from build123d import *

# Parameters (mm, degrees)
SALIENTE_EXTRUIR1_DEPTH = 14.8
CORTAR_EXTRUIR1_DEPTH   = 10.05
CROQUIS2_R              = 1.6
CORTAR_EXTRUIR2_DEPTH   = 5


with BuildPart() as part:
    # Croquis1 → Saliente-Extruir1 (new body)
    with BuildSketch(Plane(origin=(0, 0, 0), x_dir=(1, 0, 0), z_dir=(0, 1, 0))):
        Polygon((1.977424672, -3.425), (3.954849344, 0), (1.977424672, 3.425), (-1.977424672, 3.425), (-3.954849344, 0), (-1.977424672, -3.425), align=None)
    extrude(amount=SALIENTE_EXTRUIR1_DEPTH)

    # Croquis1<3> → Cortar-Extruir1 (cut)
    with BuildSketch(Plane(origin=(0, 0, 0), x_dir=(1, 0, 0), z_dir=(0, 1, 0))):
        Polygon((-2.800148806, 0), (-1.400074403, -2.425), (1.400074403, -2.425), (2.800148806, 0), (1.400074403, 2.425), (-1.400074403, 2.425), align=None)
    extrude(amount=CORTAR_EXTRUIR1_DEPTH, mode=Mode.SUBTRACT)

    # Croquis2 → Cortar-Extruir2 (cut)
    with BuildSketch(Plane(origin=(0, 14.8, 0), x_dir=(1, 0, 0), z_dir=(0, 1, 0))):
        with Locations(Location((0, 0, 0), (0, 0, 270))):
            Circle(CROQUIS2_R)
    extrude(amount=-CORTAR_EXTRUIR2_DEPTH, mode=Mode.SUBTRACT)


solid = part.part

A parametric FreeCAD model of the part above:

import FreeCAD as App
import Part
import Sketcher
from FreeCAD import Vector
Q = App.Units.Quantity

doc = App.newDocument("Part")
params = doc.addObject("Spreadsheet::Sheet", "Params")
for row, (alias, value) in enumerate([
    ("pad1_length", "14.8 mm"),
    ("pocket1_length", "10.05 mm"),
    ("sketch3_diameter", "3.2 mm"),
    ("pocket2_length", "5 mm"),
], start=1):
    params.set(f"A{row}", alias)
    params.set(f"B{row}", "=" + value)
    params.setAlias(f"B{row}", alias)

body = doc.addObject("PartDesign::Body", "Body")

sketch1 = doc.addObject("Sketcher::SketchObject", "Sketch")
body.addObject(sketch1)
sketch1.AttachmentSupport = (doc.XZ_Plane, [""])
sketch1.MapMode = "FlatFace"
sketch1.addGeometry([
    Part.LineSegment(Vector(1.977425, 3.425, 0), Vector(3.954849, 0, 0)),
    Part.LineSegment(Vector(3.954849, 0, 0), Vector(1.977425, -3.425, 0)),
    Part.LineSegment(Vector(1.977425, -3.425, 0), Vector(-1.977425, -3.425, 0)),
    Part.LineSegment(Vector(-1.977425, -3.425, 0), Vector(-3.954849, 0, 0)),
    Part.LineSegment(Vector(-3.954849, 0, 0), Vector(-1.977425, 3.425, 0)),
    Part.LineSegment(Vector(-1.977425, 3.425, 0), Vector(1.977425, 3.425, 0)),
], False)
sketch1.addConstraint([
    Sketcher.Constraint("Coincident", 0, 2, 1, 1),
    Sketcher.Constraint("Coincident", 1, 2, 2, 1),
    Sketcher.Constraint("Coincident", 2, 2, 3, 1),
    Sketcher.Constraint("Coincident", 3, 2, 4, 1),
    Sketcher.Constraint("Coincident", 4, 2, 5, 1),
    Sketcher.Constraint("Coincident", 5, 2, 0, 1),
    Sketcher.Constraint("Horizontal", 2),
    Sketcher.Constraint("Horizontal", 5),
    Sketcher.Constraint("Symmetric", 0, 2, 3, 2, -1, 1),
    Sketcher.Constraint("Symmetric", 1, 2, 4, 2, -1, 1),
    Sketcher.Constraint("PointOnObject", 0, 2, -1),
    Sketcher.Constraint("Parallel", 0, 3),
    Sketcher.Constraint("Vertical", 2, 2, 4, 2),
    Sketcher.Constraint("Angle", 0, Q("-60 deg")),
    Sketcher.Constraint("DistanceY", 2, 2, 4, 2, 6.85),
    Sketcher.Constraint("DistanceX", 2, 2, 2, 1, 3.954849),
])
pad1 = doc.addObject("PartDesign::Pad", "Pad")
body.addObject(pad1)
pad1.Profile = sketch1
pad1.setExpression("Length", "Params.pad1_length")
pad1.Reversed = True

sketch2 = doc.addObject("Sketcher::SketchObject", "Sketch001")
body.addObject(sketch2)
sketch2.AttachmentSupport = (doc.XZ_Plane, [""])
sketch2.MapMode = "FlatFace"
sketch2.addGeometry([
    Part.LineSegment(Vector(-2.800149, 0, 0), Vector(-1.400074, 2.425, 0)),
    Part.LineSegment(Vector(-1.400074, 2.425, 0), Vector(1.400074, 2.425, 0)),
    Part.LineSegment(Vector(1.400074, 2.425, 0), Vector(2.800149, 0, 0)),
    Part.LineSegment(Vector(2.800149, 0, 0), Vector(1.400074, -2.425, 0)),
    Part.LineSegment(Vector(1.400074, -2.425, 0), Vector(-1.400074, -2.425, 0)),
    Part.LineSegment(Vector(-1.400074, -2.425, 0), Vector(-2.800149, 0, 0)),
], False)
sketch2.addConstraint([
    Sketcher.Constraint("Coincident", 0, 2, 1, 1),
    Sketcher.Constraint("Coincident", 1, 2, 2, 1),
    Sketcher.Constraint("Coincident", 2, 2, 3, 1),
    Sketcher.Constraint("Coincident", 3, 2, 4, 1),
    Sketcher.Constraint("Coincident", 4, 2, 5, 1),
    Sketcher.Constraint("Coincident", 5, 2, 0, 1),
    Sketcher.Constraint("Horizontal", 1),
    Sketcher.Constraint("Horizontal", 4),
    Sketcher.Constraint("Symmetric", 0, 2, 3, 2, -1, 1),
    Sketcher.Constraint("Symmetric", 2, 2, 5, 2, -1, 1),
    Sketcher.Constraint("PointOnObject", 2, 2, -1),
    Sketcher.Constraint("Parallel", 2, 5),
    Sketcher.Constraint("Vertical", 1, 2, 3, 2),
    Sketcher.Constraint("Angle", 0, Q("60 deg")),
    Sketcher.Constraint("DistanceY", 3, 2, 1, 2, 4.85),
    Sketcher.Constraint("DistanceX", 1, 1, 1, 2, 2.800149),
])
pocket1 = doc.addObject("PartDesign::Pocket", "Pocket")
body.addObject(pocket1)
pocket1.Profile = sketch2
pocket1.setExpression("Length", "Params.pocket1_length")

sketch3 = doc.addObject("Sketcher::SketchObject", "Sketch002")
body.addObject(sketch3)
sketch3.AttachmentSupport = (doc.XZ_Plane, [""])
sketch3.MapMode = "FlatFace"
sketch3.AttachmentOffset = App.Placement(Vector(0, 0, -14.8), App.Rotation())
sketch3.addGeometry(Part.Circle(Vector(0, 0, 0), Vector(0, 0, 1), 1.6), False)
sketch3.addConstraint([
    Sketcher.Constraint("Coincident", 0, 3, -1, 1),
    Sketcher.Constraint("Diameter", 0, 3.2),
])
sketch3.setExpression("Constraints[1]", "Params.sketch3_diameter")
pocket2 = doc.addObject("PartDesign::Pocket", "Pocket001")
body.addObject(pocket2)
pocket2.Profile = sketch3
pocket2.setExpression("Length", "Params.pocket2_length")
pocket2.Reversed = True

doc.recompute()
